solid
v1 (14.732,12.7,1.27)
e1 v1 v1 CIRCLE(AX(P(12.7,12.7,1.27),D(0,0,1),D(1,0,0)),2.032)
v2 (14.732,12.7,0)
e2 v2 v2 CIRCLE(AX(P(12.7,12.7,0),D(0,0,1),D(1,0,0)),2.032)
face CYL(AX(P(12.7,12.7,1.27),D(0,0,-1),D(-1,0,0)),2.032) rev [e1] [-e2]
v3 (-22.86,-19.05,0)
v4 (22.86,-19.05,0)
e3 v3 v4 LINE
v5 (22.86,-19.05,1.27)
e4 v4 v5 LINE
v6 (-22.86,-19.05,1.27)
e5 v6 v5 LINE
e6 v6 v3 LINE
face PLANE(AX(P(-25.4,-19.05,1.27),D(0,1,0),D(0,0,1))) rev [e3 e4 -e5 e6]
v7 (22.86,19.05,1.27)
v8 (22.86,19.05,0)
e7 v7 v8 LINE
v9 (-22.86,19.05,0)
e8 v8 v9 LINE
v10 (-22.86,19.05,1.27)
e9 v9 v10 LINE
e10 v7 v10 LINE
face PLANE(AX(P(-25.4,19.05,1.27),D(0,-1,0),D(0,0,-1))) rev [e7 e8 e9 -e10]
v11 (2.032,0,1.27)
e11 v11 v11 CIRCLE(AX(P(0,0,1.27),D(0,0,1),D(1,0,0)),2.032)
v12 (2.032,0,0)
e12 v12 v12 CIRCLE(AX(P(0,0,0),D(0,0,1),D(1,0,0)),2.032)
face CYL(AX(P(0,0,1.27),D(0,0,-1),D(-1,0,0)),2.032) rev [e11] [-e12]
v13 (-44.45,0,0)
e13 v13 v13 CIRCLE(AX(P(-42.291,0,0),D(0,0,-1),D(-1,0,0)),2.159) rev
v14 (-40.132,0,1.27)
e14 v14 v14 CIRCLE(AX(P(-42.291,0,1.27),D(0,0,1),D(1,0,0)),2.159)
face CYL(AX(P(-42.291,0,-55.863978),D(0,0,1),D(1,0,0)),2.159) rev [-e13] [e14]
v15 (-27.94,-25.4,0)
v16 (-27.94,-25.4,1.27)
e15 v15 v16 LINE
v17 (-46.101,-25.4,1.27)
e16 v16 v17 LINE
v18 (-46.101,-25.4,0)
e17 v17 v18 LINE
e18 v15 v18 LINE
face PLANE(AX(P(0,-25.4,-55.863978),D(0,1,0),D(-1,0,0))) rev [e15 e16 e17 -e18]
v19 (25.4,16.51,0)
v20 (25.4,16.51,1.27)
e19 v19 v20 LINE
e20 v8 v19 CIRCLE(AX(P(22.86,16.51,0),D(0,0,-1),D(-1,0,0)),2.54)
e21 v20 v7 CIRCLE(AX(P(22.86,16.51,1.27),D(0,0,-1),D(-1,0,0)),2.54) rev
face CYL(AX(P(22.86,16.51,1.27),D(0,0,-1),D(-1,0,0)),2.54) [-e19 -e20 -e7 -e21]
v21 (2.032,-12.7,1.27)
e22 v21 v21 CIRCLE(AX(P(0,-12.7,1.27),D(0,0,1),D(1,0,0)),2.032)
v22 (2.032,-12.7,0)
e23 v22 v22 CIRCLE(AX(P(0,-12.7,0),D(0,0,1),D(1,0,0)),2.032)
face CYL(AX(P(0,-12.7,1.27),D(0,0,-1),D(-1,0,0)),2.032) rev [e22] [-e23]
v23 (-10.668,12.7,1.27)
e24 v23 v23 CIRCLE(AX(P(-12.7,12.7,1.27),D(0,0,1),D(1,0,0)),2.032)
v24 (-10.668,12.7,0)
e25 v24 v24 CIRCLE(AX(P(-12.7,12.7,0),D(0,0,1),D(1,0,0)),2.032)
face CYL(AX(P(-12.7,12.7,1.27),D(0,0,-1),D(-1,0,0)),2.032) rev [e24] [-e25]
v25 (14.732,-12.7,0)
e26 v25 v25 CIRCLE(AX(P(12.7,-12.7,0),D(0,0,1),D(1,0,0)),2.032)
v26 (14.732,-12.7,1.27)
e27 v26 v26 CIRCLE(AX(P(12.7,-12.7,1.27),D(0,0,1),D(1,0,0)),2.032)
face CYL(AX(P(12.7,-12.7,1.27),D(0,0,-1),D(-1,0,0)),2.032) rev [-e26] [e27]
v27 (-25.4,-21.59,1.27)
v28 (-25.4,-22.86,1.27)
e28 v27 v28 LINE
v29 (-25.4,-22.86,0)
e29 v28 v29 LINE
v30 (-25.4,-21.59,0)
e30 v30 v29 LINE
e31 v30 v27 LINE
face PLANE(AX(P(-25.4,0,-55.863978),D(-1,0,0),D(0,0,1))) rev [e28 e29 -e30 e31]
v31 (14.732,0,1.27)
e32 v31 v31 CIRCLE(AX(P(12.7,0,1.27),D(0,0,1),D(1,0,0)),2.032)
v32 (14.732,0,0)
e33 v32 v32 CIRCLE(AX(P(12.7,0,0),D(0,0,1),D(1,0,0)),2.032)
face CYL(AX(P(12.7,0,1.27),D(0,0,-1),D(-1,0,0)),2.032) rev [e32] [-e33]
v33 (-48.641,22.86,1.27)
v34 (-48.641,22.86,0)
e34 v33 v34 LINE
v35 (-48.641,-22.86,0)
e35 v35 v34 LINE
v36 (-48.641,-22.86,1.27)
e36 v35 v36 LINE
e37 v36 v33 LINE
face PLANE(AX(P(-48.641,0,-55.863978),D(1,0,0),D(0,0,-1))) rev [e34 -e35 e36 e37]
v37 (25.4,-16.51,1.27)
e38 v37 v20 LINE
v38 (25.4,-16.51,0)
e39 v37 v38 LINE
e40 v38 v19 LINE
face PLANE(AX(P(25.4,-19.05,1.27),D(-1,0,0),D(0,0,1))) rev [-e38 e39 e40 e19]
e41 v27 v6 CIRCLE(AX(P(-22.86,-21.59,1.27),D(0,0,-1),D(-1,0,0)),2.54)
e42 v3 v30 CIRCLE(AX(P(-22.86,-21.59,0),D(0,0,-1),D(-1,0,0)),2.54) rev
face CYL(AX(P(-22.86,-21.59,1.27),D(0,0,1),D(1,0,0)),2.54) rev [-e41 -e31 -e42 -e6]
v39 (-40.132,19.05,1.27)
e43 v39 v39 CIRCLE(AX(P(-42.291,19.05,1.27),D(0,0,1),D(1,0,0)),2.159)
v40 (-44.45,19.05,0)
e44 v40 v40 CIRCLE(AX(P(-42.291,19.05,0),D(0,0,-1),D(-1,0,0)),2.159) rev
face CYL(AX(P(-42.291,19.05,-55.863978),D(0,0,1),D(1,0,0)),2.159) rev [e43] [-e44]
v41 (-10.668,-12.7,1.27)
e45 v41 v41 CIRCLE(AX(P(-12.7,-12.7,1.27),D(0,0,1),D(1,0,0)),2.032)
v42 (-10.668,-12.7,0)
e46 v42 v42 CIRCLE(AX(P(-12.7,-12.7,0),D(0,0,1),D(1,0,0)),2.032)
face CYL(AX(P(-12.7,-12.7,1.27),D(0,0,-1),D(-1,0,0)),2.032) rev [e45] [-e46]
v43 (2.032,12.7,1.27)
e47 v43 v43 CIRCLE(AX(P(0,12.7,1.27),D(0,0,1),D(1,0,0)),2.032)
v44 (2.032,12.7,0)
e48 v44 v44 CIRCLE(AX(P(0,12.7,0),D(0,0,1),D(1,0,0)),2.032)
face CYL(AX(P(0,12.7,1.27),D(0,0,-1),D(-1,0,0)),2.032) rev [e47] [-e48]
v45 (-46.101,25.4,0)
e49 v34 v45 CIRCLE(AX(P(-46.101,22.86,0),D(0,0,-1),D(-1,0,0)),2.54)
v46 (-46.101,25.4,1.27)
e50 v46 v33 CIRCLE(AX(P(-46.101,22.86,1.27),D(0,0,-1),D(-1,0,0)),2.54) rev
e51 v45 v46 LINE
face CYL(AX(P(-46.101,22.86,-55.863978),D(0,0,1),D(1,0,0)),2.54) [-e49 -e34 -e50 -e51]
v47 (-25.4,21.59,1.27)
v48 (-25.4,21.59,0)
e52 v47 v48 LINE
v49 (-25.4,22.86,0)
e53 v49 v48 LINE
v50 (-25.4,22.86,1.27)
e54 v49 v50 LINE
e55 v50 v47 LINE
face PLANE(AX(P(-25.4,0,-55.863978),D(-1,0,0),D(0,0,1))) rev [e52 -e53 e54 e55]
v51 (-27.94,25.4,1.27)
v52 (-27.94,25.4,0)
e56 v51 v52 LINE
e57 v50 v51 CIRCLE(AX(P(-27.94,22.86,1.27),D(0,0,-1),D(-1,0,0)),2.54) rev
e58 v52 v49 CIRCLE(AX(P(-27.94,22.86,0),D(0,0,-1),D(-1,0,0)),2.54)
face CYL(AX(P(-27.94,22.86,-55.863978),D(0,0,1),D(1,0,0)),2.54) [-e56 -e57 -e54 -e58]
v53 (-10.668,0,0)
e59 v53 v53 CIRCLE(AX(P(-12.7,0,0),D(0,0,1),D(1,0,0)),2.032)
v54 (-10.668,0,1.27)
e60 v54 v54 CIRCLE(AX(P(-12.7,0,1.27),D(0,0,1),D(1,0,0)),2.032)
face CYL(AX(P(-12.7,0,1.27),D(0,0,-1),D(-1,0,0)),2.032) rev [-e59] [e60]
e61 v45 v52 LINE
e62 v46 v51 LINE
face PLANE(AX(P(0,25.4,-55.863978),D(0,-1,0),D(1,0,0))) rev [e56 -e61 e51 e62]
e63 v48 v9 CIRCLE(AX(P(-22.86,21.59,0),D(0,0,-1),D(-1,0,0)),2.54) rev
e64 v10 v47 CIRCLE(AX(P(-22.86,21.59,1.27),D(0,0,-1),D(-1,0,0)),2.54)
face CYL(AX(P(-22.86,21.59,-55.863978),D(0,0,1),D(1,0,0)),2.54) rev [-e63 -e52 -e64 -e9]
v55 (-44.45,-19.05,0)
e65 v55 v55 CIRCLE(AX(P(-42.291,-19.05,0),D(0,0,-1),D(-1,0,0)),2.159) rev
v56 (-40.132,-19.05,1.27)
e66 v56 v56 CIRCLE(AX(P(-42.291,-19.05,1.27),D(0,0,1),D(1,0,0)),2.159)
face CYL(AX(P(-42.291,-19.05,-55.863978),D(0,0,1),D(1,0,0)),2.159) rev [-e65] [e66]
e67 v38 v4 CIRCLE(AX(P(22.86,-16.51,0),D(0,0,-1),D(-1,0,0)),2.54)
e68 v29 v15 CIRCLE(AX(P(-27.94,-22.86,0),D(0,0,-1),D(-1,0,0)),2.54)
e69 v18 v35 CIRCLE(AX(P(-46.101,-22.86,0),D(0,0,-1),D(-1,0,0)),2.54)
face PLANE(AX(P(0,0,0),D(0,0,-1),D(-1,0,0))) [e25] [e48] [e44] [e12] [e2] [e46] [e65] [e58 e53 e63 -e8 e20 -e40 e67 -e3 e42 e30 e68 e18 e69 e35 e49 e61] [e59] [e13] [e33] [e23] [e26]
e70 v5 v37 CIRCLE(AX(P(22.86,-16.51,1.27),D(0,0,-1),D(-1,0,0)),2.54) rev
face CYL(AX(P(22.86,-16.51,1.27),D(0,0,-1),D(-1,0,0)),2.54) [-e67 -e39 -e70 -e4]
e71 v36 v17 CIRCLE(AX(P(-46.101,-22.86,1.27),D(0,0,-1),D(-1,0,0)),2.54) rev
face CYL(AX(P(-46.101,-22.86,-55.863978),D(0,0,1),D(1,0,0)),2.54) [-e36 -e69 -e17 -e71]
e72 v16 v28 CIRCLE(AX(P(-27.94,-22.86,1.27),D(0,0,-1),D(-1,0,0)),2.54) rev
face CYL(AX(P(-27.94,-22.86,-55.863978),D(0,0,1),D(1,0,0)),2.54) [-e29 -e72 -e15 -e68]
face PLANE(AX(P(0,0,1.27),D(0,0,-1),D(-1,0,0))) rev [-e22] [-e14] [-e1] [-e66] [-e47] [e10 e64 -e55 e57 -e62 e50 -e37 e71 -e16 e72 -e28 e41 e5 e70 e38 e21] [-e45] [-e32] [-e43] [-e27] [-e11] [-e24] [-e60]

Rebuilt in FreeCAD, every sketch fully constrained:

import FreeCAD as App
import Part
import Sketcher

V = App.Vector
Q = App.Units.Quantity


def edges_at(feature, points):
    """Names of the edges that pass closest to the given points."""
    edges = feature.Shape.Edges
    near = lambda p: min(range(len(edges)), key=lambda i: edges[i].distToShape(Part.Vertex(*p))[0])
    return sorted({f"Edge{near(p) + 1}" for p in points})


def add_polygon(sketch, points):
    """Adds a closed chain of lines whose ends are joined by coincident constraints."""
    first, n = sketch.GeometryCount, len(points)
    for a, b in zip(points, points[1:] + points[:1]):
        sketch.addGeometry(Part.LineSegment(App.Vector(*a, 0), App.Vector(*b, 0)), False)
    for i in range(n):
        sketch.addConstraint(Sketcher.Constraint("Coincident", first + i, 2, first + (i + 1) % n, 1))

doc = App.newDocument("Part")
params = doc.addObject("Spreadsheet::Sheet", "Params")
for row, (alias, value) in enumerate([
    ("sketch1_diameter", "0.16 in"),
    ("sketch1_width", "2 in"),
    ("sketch1_height", "1.5 in"),
    ("pad1_length", "0.05 in"),
    ("fillet_radius", "0.1 in"),
    ("sketch2_diameter", "0.17 in"),
    ("sketch2_height", "2 in"),
    ("sketch2_width", "0.915 in"),
    ("pad2_length", "0.05 in"),
    ("fillet2_radius", "0.1 in"),
], start=1):
    params.set(f"A{row}", alias)
    params.set(f"B{row}", "=" + value)
    params.setAlias(f"B{row}", alias)

body = doc.addObject("PartDesign::Body", "Body")

sketch1 = doc.addObject("Sketcher::SketchObject", "Sketch")
body.addObject(sketch1)
sketch1.AttachmentSupport = (doc.XY_Plane, [""])
sketch1.MapMode = "FlatFace"
add_polygon(sketch1, [(-25.4, 19.1), (-25.4, -19.1), (25.4, -19.1), (25.4, 19.1)])
sketch1.addGeometry(Part.Circle(V(-12.7, -12.7, 0), V(0, 0, 1), 2), False)
sketch1.addGeometry(Part.Circle(V(0, -12.7, 0), V(0, 0, 1), 2), False)
sketch1.addGeometry(Part.Circle(V(-12.7, 0, 0), V(0, 0, 1), 2), False)
sketch1.addGeometry(Part.Circle(V(0, 0, 0), V(0, 0, 1), 2), False)
sketch1.addGeometry(Part.Circle(V(12.7, -12.7, 0), V(0, 0, 1), 2), False)
sketch1.addGeometry(Part.Circle(V(12.7, 0, 0), V(0, 0, 1), 2), False)
sketch1.addGeometry(Part.Circle(V(-12.7, 12.7, 0), V(0, 0, 1), 2), False)
sketch1.addGeometry(Part.Circle(V(0, 12.7, 0), V(0, 0, 1), 2), False)
sketch1.addGeometry(Part.Circle(V(12.7, 12.7, 0), V(0, 0, 1), 2), False)
sketch1.addConstraint([
    Sketcher.Constraint("Vertical", 0),
    Sketcher.Constraint("Horizontal", 1),
    Sketcher.Constraint("Vertical", 2),
    Sketcher.Constraint("Horizontal", 3),
    Sketcher.Constraint("Coincident", 7, 3, -1, 1),
    Sketcher.Constraint("Equal", 4, 5),
    Sketcher.Constraint("Equal", 5, 6),
    Sketcher.Constraint("Equal", 6, 7),
    Sketcher.Constraint("Equal", 7, 8),
    Sketcher.Constraint("Equal", 8, 9),
    Sketcher.Constraint("Equal", 9, 10),
    Sketcher.Constraint("Equal", 10, 11),
    Sketcher.Constraint("Equal", 11, 12),
    Sketcher.Constraint("Symmetric", 6, 3, 9, 3, -1, 1),
    Sketcher.Constraint("Symmetric", 8, 3, 10, 3, -1, 1),
    Sketcher.Constraint("Symmetric", 5, 3, 11, 3, -1, 1),
    Sketcher.Constraint("Symmetric", 4, 3, 12, 3, -1, 1),
    Sketcher.Constraint("Symmetric", 0, 2, 2, 2, -1, 1),
    Sketcher.Constraint("Symmetric", 4, 3, 8, 3, -2),
    Sketcher.Constraint("PointOnObject", 5, 3, -2),
    Sketcher.Constraint("PointOnObject", 6, 3, -1),
    Sketcher.Constraint("Horizontal", 4, 3, 5, 3),
    Sketcher.Constraint("Vertical", 4, 3, 6, 3),
    Sketcher.Constraint("Diameter", 4, Q("0.16 in")),
    Sketcher.Constraint("DistanceX", 1, 1, 1, 2, Q("2 in")),
    Sketcher.Constraint("DistanceY", 0, 2, 0, 1, Q("1.5 in")),
    Sketcher.Constraint("DistanceX", 4, 3, 8, 3, Q("1 in")),
    Sketcher.Constraint("DistanceY", 4, 3, 10, 3, Q("1 in")),
])
sketch1.setExpression("Constraints[27]", "Params.sketch1_diameter")
sketch1.setExpression("Constraints[28]", "Params.sketch1_width")
sketch1.setExpression("Constraints[29]", "Params.sketch1_height")
pad1 = doc.addObject("PartDesign::Pad", "Pad")
body.addObject(pad1)
pad1.Profile = sketch1
pad1.setExpression("Length", "Params.pad1_length")
doc.recompute()

fillet = doc.addObject("PartDesign::Fillet", "Fillet")
body.addObject(fillet)
fillet.Base = (pad1, edges_at(pad1, [(25.4, -19.05, 0.635), (25.4, 19.05, 0.635)]))
fillet.setExpression("Radius", "Params.fillet_radius")

sketch2 = doc.addObject("Sketcher::SketchObject", "Sketch001")
body.addObject(sketch2)
sketch2.AttachmentSupport = (doc.XY_Plane, [""])
sketch2.MapMode = "FlatFace"
sketch2.AttachmentOffset = App.Placement(V(0, 0, 0.05 * 25.4), App.Rotation())
add_polygon(sketch2, [(-25.4, -25.4), (-25.4, 25.4), (-48.6, 25.4), (-48.6, -25.4)])
sketch2.addGeometry(Part.Circle(V(-42.3, -19.1, 0), V(0, 0, 1), 2.2), False)
sketch2.addGeometry(Part.Circle(V(-42.3, 0, 0), V(0, 0, 1), 2.2), False)
sketch2.addGeometry(Part.Circle(V(-42.3, 19.1, 0), V(0, 0, 1), 2.2), False)
sketch2.addConstraint([
    Sketcher.Constraint("Vertical", 0),
    Sketcher.Constraint("Horizontal", 1),
    Sketcher.Constraint("Vertical", 2),
    Sketcher.Constraint("Horizontal", 3),
    Sketcher.Constraint("Equal", 4, 5),
    Sketcher.Constraint("Equal", 5, 6),
    Sketcher.Constraint("Symmetric", 4, 3, 6, 3, -1),
    Sketcher.Constraint("PointOnObject", 5, 3, -1),
    Sketcher.Constraint("Vertical", 4, 3, 5, 3),
    Sketcher.Constraint("Diameter", 4, Q("0.17 in")),
    Sketcher.Constraint("DistanceY", 0, 1, 0, 2, Q("2 in")),
    Sketcher.Constraint("DistanceX", 0, 2, -1, 1, Q("1 in")),
    Sketcher.Constraint("DistanceY", -1, 1, 0, 2, Q("1 in")),
    Sketcher.Constraint("DistanceY", 4, 3, 6, 3, Q("1.5 in")),
    Sketcher.Constraint("DistanceX", 1, 2, 1, 1, Q("0.915 in")),
    Sketcher.Constraint("DistanceX", 1, 2, 6, 3, Q("0.25 in")),
])
sketch2.setExpression("Constraints[13]", "Params.sketch2_diameter")
sketch2.setExpression("Constraints[14]", "Params.sketch2_height")
sketch2.setExpression("Constraints[18]", "Params.sketch2_width")
pad2 = doc.addObject("PartDesign::Pad", "Pad001")
body.addObject(pad2)
pad2.Profile = sketch2
pad2.setExpression("Length", "Params.pad2_length")
pad2.Reversed = True
doc.recompute()

fillet2 = doc.addObject("PartDesign::Fillet", "Fillet001")
body.addObject(fillet2)
fillet2.Base = (pad2, edges_at(pad2, [
    (-25.4, 25.4, 0.635),
    (-25.4, -25.4, 0.635),
    (-48.641, -25.4, 0.635),
    (-48.641, 25.4, 0.635),
    (-25.4, -19.05, 0.635),
    (-25.4, 19.05, 0.635),
]))
fillet2.setExpression("Radius", "Params.fillet2_radius")

doc.recompute()
